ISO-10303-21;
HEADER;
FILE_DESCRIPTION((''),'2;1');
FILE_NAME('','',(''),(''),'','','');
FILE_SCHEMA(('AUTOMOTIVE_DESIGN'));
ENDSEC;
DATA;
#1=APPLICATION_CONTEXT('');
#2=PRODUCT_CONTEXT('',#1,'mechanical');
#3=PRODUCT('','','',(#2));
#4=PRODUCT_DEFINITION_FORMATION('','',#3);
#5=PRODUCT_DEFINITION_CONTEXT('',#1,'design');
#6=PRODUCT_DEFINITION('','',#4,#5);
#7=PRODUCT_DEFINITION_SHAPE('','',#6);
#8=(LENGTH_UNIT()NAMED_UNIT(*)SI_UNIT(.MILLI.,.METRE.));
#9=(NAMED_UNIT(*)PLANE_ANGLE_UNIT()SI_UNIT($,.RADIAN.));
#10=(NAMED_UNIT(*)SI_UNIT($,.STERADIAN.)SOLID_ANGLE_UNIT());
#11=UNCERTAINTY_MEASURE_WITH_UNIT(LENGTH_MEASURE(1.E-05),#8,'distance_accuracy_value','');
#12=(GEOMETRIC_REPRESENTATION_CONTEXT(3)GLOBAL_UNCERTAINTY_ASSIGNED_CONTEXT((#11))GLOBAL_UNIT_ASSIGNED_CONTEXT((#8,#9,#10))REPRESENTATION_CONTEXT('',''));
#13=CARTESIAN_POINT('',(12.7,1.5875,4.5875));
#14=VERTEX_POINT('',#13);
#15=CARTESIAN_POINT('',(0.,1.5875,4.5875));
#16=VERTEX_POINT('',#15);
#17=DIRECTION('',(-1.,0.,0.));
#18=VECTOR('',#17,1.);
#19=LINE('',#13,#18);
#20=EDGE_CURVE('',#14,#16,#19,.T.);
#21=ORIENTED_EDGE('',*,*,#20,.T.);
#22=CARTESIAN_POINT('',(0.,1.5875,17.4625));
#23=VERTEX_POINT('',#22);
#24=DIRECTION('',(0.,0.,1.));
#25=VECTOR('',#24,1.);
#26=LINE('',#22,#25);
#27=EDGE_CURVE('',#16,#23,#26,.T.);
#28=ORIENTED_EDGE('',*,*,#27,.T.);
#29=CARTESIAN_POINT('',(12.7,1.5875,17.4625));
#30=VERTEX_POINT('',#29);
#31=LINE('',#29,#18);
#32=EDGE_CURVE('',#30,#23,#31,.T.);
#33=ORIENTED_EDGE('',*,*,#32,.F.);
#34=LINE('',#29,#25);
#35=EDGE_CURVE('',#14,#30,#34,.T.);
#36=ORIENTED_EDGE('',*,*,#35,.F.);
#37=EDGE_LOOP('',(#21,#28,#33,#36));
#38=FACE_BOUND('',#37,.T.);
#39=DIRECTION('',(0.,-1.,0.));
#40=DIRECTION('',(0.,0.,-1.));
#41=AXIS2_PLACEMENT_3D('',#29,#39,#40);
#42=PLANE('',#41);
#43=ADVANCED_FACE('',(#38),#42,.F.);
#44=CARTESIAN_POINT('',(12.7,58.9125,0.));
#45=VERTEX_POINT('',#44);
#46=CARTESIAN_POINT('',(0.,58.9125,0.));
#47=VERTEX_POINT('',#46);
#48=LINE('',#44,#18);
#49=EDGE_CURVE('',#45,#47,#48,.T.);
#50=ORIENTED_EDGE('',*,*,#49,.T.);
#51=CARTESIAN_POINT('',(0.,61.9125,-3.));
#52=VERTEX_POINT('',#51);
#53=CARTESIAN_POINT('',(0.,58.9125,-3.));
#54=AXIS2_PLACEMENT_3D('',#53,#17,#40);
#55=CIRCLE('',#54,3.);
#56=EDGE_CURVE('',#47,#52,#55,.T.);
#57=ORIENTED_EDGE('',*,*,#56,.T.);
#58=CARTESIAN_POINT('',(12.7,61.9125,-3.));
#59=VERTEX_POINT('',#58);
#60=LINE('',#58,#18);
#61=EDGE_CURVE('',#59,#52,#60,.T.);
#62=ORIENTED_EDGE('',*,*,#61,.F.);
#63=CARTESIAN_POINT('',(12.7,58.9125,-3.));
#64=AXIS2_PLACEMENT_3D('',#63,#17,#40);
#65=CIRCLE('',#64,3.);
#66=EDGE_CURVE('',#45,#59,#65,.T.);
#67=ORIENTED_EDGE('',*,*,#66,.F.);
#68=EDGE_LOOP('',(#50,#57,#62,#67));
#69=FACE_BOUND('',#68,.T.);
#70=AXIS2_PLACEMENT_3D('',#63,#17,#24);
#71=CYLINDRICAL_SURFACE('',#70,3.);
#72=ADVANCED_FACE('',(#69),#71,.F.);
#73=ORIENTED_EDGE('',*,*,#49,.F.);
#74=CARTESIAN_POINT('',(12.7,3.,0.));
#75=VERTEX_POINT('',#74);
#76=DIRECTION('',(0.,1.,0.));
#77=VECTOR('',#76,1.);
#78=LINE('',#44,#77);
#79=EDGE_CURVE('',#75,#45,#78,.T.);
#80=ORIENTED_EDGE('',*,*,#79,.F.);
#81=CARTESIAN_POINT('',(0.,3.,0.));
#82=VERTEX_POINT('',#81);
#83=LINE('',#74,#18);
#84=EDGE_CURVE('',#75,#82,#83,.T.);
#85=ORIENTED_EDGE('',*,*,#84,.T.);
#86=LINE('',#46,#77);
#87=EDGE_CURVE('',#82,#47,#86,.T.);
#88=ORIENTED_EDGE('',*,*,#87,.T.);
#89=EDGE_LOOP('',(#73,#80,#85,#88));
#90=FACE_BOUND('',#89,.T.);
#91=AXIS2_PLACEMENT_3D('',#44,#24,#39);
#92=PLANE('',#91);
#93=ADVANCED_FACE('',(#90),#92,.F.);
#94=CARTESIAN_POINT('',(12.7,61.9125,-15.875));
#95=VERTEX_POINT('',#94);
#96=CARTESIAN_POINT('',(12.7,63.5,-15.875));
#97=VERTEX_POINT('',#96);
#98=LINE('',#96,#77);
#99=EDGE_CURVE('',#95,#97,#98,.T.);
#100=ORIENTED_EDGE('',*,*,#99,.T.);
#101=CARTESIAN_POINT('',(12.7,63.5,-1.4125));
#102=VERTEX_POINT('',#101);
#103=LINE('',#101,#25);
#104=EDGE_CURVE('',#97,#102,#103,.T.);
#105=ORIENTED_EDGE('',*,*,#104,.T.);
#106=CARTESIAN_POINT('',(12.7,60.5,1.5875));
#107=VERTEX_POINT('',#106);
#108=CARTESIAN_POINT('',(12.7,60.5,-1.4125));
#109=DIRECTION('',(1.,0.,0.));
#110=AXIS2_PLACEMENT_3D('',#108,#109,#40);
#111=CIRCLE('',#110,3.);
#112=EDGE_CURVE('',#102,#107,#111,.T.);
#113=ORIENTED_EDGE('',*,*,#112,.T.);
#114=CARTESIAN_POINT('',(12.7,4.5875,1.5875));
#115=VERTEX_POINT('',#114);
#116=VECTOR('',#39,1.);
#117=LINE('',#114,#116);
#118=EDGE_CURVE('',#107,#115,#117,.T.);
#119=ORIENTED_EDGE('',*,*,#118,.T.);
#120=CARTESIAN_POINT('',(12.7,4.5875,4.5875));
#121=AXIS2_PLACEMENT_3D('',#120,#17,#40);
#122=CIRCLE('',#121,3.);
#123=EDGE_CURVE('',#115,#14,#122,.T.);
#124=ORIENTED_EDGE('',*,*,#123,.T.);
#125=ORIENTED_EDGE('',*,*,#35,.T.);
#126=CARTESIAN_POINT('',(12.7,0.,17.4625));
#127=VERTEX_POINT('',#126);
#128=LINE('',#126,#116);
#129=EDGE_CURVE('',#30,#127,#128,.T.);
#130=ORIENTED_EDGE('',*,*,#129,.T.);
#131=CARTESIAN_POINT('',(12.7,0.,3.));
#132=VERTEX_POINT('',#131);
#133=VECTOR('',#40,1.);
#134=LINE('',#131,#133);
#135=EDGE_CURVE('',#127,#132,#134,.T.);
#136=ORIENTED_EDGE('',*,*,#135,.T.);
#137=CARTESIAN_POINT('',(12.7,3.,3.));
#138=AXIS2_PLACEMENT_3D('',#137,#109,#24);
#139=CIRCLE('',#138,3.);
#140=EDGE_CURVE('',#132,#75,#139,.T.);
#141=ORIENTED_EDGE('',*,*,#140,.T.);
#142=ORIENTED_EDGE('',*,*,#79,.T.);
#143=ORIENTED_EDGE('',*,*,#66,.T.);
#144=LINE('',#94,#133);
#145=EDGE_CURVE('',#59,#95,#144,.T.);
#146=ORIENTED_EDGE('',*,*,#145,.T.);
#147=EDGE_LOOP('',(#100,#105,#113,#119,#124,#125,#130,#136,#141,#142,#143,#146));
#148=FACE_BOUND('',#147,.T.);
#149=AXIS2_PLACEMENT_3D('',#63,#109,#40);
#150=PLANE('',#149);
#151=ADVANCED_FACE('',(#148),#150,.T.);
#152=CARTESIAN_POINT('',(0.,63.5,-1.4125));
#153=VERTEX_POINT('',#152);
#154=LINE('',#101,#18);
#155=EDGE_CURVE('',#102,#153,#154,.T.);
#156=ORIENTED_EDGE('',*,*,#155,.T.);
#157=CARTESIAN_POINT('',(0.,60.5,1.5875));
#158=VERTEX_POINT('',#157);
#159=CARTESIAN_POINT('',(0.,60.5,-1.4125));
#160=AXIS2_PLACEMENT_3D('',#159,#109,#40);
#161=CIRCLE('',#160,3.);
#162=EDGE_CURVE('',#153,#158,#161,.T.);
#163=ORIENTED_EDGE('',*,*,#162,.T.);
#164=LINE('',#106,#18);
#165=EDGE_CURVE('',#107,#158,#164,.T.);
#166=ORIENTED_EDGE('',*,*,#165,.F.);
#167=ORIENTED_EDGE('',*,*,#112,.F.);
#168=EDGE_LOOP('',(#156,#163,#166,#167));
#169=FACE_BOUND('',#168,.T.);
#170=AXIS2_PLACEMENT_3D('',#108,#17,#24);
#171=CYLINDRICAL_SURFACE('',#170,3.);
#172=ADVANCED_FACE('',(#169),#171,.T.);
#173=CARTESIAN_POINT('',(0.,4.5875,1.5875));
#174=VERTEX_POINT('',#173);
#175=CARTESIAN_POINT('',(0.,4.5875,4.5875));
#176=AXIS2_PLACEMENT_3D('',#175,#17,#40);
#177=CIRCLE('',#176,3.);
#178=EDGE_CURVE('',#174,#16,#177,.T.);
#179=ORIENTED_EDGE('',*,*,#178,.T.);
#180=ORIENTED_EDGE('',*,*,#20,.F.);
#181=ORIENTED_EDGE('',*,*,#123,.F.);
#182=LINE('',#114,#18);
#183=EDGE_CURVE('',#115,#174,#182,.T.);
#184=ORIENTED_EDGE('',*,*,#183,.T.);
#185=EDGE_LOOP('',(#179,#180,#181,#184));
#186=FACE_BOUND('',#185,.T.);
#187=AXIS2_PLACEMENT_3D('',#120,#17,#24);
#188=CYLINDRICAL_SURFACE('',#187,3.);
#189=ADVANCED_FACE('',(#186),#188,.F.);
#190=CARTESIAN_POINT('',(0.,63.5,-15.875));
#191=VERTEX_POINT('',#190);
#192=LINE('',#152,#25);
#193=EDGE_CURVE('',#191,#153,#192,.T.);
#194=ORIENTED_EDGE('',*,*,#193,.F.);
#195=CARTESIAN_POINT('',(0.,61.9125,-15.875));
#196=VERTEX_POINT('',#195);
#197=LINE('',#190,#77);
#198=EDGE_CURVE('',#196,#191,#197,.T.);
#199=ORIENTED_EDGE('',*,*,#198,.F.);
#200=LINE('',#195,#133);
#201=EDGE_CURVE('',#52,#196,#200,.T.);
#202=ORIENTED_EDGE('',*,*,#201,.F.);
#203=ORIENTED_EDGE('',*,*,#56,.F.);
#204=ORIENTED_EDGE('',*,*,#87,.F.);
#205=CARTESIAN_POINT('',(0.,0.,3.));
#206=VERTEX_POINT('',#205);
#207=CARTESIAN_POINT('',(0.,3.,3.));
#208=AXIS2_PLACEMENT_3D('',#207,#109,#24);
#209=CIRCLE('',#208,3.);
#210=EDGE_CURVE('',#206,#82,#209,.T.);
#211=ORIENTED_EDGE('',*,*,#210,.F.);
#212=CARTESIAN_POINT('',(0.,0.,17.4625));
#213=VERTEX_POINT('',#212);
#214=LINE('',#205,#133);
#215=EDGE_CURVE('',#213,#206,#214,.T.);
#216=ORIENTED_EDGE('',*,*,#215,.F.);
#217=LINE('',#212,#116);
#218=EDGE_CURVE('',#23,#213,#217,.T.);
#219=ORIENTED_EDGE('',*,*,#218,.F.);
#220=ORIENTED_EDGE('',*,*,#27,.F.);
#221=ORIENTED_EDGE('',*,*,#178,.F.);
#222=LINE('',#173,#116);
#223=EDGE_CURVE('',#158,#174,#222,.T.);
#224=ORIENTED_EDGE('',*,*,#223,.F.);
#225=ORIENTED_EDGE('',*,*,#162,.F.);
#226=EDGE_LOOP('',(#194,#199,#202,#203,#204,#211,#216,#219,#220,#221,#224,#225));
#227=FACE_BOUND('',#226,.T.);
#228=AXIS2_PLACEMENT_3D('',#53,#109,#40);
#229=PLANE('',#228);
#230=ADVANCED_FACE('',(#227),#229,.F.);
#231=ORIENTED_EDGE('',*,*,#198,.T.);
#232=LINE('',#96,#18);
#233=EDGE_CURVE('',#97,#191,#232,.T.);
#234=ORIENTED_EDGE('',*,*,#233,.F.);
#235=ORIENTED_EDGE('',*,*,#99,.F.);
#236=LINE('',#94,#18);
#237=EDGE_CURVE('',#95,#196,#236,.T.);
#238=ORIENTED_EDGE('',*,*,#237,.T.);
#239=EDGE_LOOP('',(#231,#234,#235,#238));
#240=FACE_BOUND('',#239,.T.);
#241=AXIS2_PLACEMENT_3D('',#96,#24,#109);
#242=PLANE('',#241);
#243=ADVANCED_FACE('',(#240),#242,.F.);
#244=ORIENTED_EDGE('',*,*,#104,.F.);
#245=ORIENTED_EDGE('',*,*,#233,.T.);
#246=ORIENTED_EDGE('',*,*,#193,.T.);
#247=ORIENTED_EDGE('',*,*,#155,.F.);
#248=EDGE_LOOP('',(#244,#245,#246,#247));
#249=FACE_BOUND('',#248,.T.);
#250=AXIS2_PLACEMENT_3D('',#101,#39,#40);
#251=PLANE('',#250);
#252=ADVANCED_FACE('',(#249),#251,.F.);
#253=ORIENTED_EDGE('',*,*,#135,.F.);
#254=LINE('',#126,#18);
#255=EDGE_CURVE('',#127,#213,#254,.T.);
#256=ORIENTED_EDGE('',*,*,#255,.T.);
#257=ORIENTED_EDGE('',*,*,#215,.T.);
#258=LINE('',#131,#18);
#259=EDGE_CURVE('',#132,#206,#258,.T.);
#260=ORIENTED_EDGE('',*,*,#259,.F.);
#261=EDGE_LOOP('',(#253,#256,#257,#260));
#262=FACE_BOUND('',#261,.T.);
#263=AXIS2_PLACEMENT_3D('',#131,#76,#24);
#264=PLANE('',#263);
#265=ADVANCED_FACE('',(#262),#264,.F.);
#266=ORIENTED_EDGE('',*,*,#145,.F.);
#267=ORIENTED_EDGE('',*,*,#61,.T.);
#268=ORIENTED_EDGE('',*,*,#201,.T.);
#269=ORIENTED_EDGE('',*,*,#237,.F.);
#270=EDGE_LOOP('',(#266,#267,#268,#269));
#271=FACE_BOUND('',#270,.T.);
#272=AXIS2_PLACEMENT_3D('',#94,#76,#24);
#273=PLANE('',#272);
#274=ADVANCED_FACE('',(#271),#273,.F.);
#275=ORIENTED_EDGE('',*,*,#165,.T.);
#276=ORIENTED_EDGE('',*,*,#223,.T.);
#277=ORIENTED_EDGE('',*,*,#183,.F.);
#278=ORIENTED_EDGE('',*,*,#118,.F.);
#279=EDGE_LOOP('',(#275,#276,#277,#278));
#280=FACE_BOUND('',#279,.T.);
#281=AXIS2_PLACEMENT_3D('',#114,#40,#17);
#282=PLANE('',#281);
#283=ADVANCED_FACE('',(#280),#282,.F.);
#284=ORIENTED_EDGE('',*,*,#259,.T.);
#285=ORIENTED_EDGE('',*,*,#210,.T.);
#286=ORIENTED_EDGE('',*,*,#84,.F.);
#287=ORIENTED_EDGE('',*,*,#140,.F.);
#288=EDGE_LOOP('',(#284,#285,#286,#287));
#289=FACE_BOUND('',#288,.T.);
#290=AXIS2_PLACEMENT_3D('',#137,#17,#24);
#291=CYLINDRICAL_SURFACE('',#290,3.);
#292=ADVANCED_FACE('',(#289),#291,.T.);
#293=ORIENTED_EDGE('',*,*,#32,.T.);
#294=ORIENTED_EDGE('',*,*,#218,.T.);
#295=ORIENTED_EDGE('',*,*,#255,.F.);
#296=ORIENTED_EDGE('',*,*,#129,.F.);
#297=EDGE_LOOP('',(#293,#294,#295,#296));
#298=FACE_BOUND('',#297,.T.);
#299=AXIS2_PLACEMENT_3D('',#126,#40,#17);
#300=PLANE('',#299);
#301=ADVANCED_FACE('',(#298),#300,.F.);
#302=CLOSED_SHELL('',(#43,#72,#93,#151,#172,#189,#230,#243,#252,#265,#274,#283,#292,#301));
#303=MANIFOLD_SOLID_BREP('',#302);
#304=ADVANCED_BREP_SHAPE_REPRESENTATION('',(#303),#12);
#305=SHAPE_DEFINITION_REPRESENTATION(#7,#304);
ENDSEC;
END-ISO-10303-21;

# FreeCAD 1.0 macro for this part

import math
import FreeCAD as App
import Part
import Sketcher

V = App.Vector
Q = App.Units.Quantity

doc = App.newDocument("Part")
body = doc.addObject("PartDesign::Body", "Body")

# Sketch on YZ plane
sketch1 = body.newObject("Sketcher::SketchObject", "Sketch")
sketch1.AttachmentSupport = (doc.getObject("YZ_Plane"), [""])
sketch1.MapMode = "FlatFace"
sketch1.addGeometry([
    Part.LineSegment(V(63.5, -15.9, 0), V(63.5, -1.4, 0)),  # 0
    Part.ArcOfCircle(Part.Circle(V(60.5, -1.4, 0), V(0, 0, 1), 3), math.radians(0), math.radians(90)),  # 1
    Part.LineSegment(V(60.5, 1.6, 0), V(4.6, 1.6, 0)),  # 2
    Part.ArcOfCircle(Part.Circle(V(4.6, 4.6, 0), V(0, 0, 1), 3), math.radians(180), math.radians(270)),  # 3
    Part.LineSegment(V(1.6, 4.6, 0), V(1.6, 17.5, 0)),  # 4
    Part.LineSegment(V(1.6, 17.5, 0), V(0, 17.5, 0)),  # 5
    Part.LineSegment(V(0, 17.5, 0), V(0, 3, 0)),  # 6
    Part.ArcOfCircle(Part.Circle(V(3, 3, 0), V(0, 0, 1), 3), math.radians(180), math.radians(270)),  # 7
    Part.LineSegment(V(3, 0, 0), V(58.9, 0, 0)),  # 8
    Part.ArcOfCircle(Part.Circle(V(58.9, -3, 0), V(0, 0, 1), 3), math.radians(0), math.radians(90)),  # 9
    Part.LineSegment(V(61.9, -3, 0), V(61.9, -15.9, 0)),  # 10
    Part.LineSegment(V(61.9, -15.9, 0), V(63.5, -15.9, 0)),  # 11
], False)
sketch1.addConstraint([
    Sketcher.Constraint("Tangent", 0, 2, 1, 1),
    Sketcher.Constraint("Tangent", 1, 2, 2, 1),
    Sketcher.Constraint("Tangent", 2, 2, 3, 2),
    Sketcher.Constraint("Tangent", 3, 1, 4, 1),
    Sketcher.Constraint("Coincident", 4, 2, 5, 1),
    Sketcher.Constraint("Coincident", 5, 2, 6, 1),
    Sketcher.Constraint("Tangent", 6, 2, 7, 1),
    Sketcher.Constraint("Tangent", 7, 2, 8, 1),
    Sketcher.Constraint("Tangent", 8, 2, 9, 2),
    Sketcher.Constraint("Tangent", 9, 1, 10, 1),
    Sketcher.Constraint("Coincident", 10, 2, 11, 1),
    Sketcher.Constraint("Coincident", 11, 2, 0, 1),
    Sketcher.Constraint("Vertical", 0),
    Sketcher.Constraint("Horizontal", 2),
    Sketcher.Constraint("Vertical", 4),
    Sketcher.Constraint("Horizontal", 5),
    Sketcher.Constraint("Vertical", 6),
    Sketcher.Constraint("Horizontal", 8),
    Sketcher.Constraint("Vertical", 10),
    Sketcher.Constraint("Horizontal", 11),
    Sketcher.Constraint("Equal", 1, 3),
    Sketcher.Constraint("Equal", 3, 7),
    Sketcher.Constraint("Equal", 7, 9),
    Sketcher.Constraint("PointOnObject", 5, 2, -2),
    Sketcher.Constraint("PointOnObject", 7, 2, -1),
    Sketcher.Constraint("Equal", 2, 8),
    Sketcher.Constraint("Equal", 0, 6),
    Sketcher.Constraint("DistanceX", -1, 1, 0, 2, Q("2.5 in")),
    Sketcher.Constraint("DistanceX", 5, 2, 5, 1, Q("0.0625 in")),
    Sketcher.Constraint("Radius", 1, Q("3 mm")),
    Sketcher.Constraint("DistanceY", -1, 1, 1, 2, Q("0.0625 in")),
    Sketcher.Constraint("DistanceY", -1, 1, 4, 2, Q("0.6875 in")),
])
pad1 = body.newObject("PartDesign::Pad", "Pad")
pad1.Profile = sketch1
pad1.Length = Q("0.5 in")

doc.recompute()
